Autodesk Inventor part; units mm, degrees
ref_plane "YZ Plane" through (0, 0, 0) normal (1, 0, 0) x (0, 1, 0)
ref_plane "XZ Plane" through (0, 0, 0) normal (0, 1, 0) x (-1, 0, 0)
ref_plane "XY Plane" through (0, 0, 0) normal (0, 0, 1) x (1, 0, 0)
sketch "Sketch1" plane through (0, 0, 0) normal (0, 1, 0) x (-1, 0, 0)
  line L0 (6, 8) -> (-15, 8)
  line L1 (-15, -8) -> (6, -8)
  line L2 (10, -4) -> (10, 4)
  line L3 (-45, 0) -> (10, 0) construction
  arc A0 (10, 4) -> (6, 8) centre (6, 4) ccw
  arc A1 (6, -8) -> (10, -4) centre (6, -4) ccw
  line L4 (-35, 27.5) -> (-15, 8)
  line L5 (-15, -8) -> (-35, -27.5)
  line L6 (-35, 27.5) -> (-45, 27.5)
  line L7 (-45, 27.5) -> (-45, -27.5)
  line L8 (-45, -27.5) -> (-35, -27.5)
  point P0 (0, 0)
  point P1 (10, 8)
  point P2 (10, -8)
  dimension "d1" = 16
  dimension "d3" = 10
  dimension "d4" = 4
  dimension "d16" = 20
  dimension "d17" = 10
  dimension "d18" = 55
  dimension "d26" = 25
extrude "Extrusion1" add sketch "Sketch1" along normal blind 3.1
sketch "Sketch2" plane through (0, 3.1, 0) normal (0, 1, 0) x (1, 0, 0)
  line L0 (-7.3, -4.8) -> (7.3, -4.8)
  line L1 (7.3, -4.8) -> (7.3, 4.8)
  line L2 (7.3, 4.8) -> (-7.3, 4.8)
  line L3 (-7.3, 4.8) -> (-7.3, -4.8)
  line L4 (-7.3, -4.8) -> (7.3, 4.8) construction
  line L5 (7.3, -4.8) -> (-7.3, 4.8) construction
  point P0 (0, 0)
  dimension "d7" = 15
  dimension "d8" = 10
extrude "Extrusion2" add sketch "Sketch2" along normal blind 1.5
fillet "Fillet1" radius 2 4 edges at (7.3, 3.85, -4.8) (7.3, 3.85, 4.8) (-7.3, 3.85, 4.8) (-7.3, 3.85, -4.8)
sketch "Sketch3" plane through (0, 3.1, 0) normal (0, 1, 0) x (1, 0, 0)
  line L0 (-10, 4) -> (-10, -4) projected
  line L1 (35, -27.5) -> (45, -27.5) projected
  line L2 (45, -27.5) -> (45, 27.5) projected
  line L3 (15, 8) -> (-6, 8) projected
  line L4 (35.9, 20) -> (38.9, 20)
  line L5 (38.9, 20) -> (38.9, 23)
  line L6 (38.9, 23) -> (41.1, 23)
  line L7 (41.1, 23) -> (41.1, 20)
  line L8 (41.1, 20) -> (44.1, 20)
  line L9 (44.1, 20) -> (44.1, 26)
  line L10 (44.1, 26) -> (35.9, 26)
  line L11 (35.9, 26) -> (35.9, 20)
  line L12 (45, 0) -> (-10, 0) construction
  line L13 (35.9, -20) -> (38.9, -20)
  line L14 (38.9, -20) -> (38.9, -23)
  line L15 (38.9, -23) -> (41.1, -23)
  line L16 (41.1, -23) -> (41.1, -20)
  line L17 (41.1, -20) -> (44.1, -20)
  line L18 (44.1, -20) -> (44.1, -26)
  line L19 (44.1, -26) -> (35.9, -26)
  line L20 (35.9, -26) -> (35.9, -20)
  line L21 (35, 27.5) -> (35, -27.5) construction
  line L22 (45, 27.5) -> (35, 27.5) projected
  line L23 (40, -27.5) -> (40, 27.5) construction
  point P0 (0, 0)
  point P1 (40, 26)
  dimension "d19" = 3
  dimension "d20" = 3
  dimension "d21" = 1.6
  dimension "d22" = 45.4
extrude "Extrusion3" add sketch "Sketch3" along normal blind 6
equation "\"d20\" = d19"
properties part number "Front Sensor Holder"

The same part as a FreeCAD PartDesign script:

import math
import FreeCAD as App
import Part
import Sketcher
from FreeCAD import Vector
Q = App.Units.Quantity


def edges_at(feature, points):
    """Names of the edges that pass closest to the given points."""
    edges = feature.Shape.Edges
    near = lambda p: min(range(len(edges)), key=lambda i: edges[i].distToShape(Part.Vertex(*p))[0])
    return sorted({f"Edge{near(p) + 1}" for p in points})


def add_polygon(sketch, points):
    """Adds a closed chain of lines whose ends are joined by coincident constraints."""
    first, n = sketch.GeometryCount, len(points)
    for a, b in zip(points, points[1:] + points[:1]):
        sketch.addGeometry(Part.LineSegment(App.Vector(*a, 0), App.Vector(*b, 0)), False)
    for i in range(n):
        sketch.addConstraint(Sketcher.Constraint("Coincident", first + i, 2, first + (i + 1) % n, 1))

doc = App.newDocument("Part")
body = doc.addObject("PartDesign::Body", "Body")

# Sketch on XZ plane
sketch1 = body.newObject("Sketcher::SketchObject", "Sketch")
sketch1.AttachmentSupport = (doc.getObject("XZ_Plane"), [""])
sketch1.MapMode = "FlatFace"
sketch1.addGeometry([
    Part.ArcOfCircle(Part.Circle(Vector(-6, 4, 0), Vector(0, 0, 1), 4), math.radians(90), math.radians(180)),  # 0
    Part.LineSegment(Vector(-6, 8, 0), Vector(15, 8, 0)),  # 1
    Part.LineSegment(Vector(15, 8, 0), Vector(35, 27.5, 0)),  # 2
    Part.LineSegment(Vector(35, 27.5, 0), Vector(45, 27.5, 0)),  # 3
    Part.LineSegment(Vector(45, 27.5, 0), Vector(45, -27.5, 0)),  # 4
    Part.LineSegment(Vector(45, -27.5, 0), Vector(35, -27.5, 0)),  # 5
    Part.LineSegment(Vector(35, -27.5, 0), Vector(15, -8, 0)),  # 6
    Part.LineSegment(Vector(15, -8, 0), Vector(-6, -8, 0)),  # 7
    Part.ArcOfCircle(Part.Circle(Vector(-6, -4, 0), Vector(0, 0, 1), 4), math.radians(180), math.radians(270)),  # 8
    Part.LineSegment(Vector(-10, -4, 0), Vector(-10, 4, 0)),  # 9
], False)
sketch1.addConstraint([
    Sketcher.Constraint("Tangent", 0, 1, 1, 1),
    Sketcher.Constraint("Coincident", 1, 2, 2, 1),
    Sketcher.Constraint("Coincident", 2, 2, 3, 1),
    Sketcher.Constraint("Coincident", 3, 2, 4, 1),
    Sketcher.Constraint("Coincident", 4, 2, 5, 1),
    Sketcher.Constraint("Coincident", 5, 2, 6, 1),
    Sketcher.Constraint("Coincident", 6, 2, 7, 1),
    Sketcher.Constraint("Tangent", 7, 2, 8, 2),
    Sketcher.Constraint("Tangent", 8, 1, 9, 1),
    Sketcher.Constraint("Tangent", 9, 2, 0, 2),
    Sketcher.Constraint("Horizontal", 1),
    Sketcher.Constraint("Horizontal", 3),
    Sketcher.Constraint("Vertical", 4),
    Sketcher.Constraint("Horizontal", 5),
    Sketcher.Constraint("Horizontal", 7),
    Sketcher.Constraint("Vertical", 9),
    Sketcher.Constraint("Equal", 0, 8),
    Sketcher.Constraint("Symmetric", 2, 2, 5, 2, -1),
    Sketcher.Constraint("Symmetric", 1, 2, 6, 2, -1),
    Sketcher.Constraint("Radius", 0, Q("4 mm")),
    Sketcher.Constraint("DistanceX", 3, 1, 3, 2, Q("10 mm")),
    Sketcher.Constraint("DistanceY", 4, 2, 4, 1, Q("55 mm")),
    Sketcher.Constraint("DistanceY", -1, 1, 0, 3, Q("4 mm")),
    Sketcher.Constraint("DistanceX", 8, 1, -1, 1, Q("10 mm")),
    Sketcher.Constraint("DistanceX", 1, 2, 2, 2, Q("20 mm")),
    Sketcher.Constraint("DistanceX", 8, 1, 6, 2, Q("25 mm")),
])
pad1 = body.newObject("PartDesign::Pad", "Pad")
pad1.Profile = sketch1
pad1.Length = 3.1
pad1.Reversed = True

# Sketch on XZ plane
sketch2 = body.newObject("Sketcher::SketchObject", "Sketch001")
sketch2.AttachmentSupport = (doc.getObject("XZ_Plane"), [""])
sketch2.MapMode = "FlatFace"
sketch2.AttachmentOffset = App.Placement(Vector(0, 0, -3.1), App.Rotation())
add_polygon(sketch2, [(-7, -5), (-7, 5), (7, 5), (7, -5)])  # lines 0-3
sketch2.addConstraint([
    Sketcher.Constraint("Vertical", 0),
    Sketcher.Constraint("Horizontal", 1),
    Sketcher.Constraint("Vertical", 2),
    Sketcher.Constraint("Horizontal", 3),
    Sketcher.Constraint("Symmetric", 0, 2, 2, 2, -1, 1),
    Sketcher.Constraint("DistanceX", 1, 1, 1, 2, Q("14.6 mm")),
    Sketcher.Constraint("DistanceY", 0, 1, 0, 2, Q("9.6 mm")),
])
pad2 = body.newObject("PartDesign::Pad", "Pad001")
pad2.Profile = sketch2
pad2.Length = 1.5
pad2.Reversed = True
doc.recompute()

fillet = body.newObject("PartDesign::Fillet", "Fillet")
fillet.Base = (pad2, edges_at(pad2, [
    (7.3, 3.85, -4.8),
    (7.3, 3.85, 4.8),
    (-7.3, 3.85, 4.8),
    (-7.3, 3.85, -4.8),
]))
fillet.Radius = 2

# Sketch on XZ plane
sketch3 = body.newObject("Sketcher::SketchObject", "Sketch002")
sketch3.AttachmentSupport = (doc.getObject("XZ_Plane"), [""])
sketch3.MapMode = "FlatFace"
sketch3.AttachmentOffset = App.Placement(Vector(0, 0, -3.1), App.Rotation())
add_polygon(sketch3, [(35.9, -26), (35.9, -20), (38.9, -20), (38.9, -23), (41.1, -23), (41.1, -20), (44.1, -20), (44.1, -26)])  # lines 0-7
add_polygon(sketch3, [(38.9, 20), (35.9, 20), (35.9, 26), (44.1, 26), (44.1, 20), (41.1, 20), (41.1, 23), (38.9, 23)])  # lines 8-15
sketch3.addConstraint([
    Sketcher.Constraint("Vertical", 0),
    Sketcher.Constraint("Horizontal", 1),
    Sketcher.Constraint("Vertical", 2),
    Sketcher.Constraint("Horizontal", 3),
    Sketcher.Constraint("Vertical", 4),
    Sketcher.Constraint("Horizontal", 5),
    Sketcher.Constraint("Vertical", 6),
    Sketcher.Constraint("Horizontal", 7),
    Sketcher.Constraint("Horizontal", 8),
    Sketcher.Constraint("Vertical", 9),
    Sketcher.Constraint("Horizontal", 10),
    Sketcher.Constraint("Vertical", 11),
    Sketcher.Constraint("Horizontal", 12),
    Sketcher.Constraint("Vertical", 13),
    Sketcher.Constraint("Horizontal", 14),
    Sketcher.Constraint("Vertical", 15),
    Sketcher.Constraint("Symmetric", 0, 2, 8, 2, -1),
    Sketcher.Constraint("Symmetric", 6, 2, 10, 2, -1),
    Sketcher.Constraint("Symmetric", 4, 2, 12, 2, -1),
    Sketcher.Constraint("Symmetric", 2, 2, 14, 2, -1),
    Sketcher.Constraint("Horizontal", 1, 2, 4, 2),
    Sketcher.Constraint("Equal", 1, 5),
    Sketcher.Constraint("Equal", 12, 2),
    Sketcher.Constraint("DistanceX", 1, 1, 1, 2, Q("3 mm")),
    Sketcher.Constraint("DistanceY", 6, 2, 3, 2, Q("3 mm")),
    Sketcher.Constraint("DistanceX", 3, 1, 3, 2, Q("2.2 mm")),
    Sketcher.Constraint("DistanceY", 0, 2, -1, 1, Q("20 mm")),
    Sketcher.Constraint("DistanceX", -1, 1, 0, 2, Q("35.9 mm")),
])
pad3 = body.newObject("PartDesign::Pad", "Pad002")
pad3.Profile = sketch3
pad3.Length = 6
pad3.Reversed = True

doc.recompute()
